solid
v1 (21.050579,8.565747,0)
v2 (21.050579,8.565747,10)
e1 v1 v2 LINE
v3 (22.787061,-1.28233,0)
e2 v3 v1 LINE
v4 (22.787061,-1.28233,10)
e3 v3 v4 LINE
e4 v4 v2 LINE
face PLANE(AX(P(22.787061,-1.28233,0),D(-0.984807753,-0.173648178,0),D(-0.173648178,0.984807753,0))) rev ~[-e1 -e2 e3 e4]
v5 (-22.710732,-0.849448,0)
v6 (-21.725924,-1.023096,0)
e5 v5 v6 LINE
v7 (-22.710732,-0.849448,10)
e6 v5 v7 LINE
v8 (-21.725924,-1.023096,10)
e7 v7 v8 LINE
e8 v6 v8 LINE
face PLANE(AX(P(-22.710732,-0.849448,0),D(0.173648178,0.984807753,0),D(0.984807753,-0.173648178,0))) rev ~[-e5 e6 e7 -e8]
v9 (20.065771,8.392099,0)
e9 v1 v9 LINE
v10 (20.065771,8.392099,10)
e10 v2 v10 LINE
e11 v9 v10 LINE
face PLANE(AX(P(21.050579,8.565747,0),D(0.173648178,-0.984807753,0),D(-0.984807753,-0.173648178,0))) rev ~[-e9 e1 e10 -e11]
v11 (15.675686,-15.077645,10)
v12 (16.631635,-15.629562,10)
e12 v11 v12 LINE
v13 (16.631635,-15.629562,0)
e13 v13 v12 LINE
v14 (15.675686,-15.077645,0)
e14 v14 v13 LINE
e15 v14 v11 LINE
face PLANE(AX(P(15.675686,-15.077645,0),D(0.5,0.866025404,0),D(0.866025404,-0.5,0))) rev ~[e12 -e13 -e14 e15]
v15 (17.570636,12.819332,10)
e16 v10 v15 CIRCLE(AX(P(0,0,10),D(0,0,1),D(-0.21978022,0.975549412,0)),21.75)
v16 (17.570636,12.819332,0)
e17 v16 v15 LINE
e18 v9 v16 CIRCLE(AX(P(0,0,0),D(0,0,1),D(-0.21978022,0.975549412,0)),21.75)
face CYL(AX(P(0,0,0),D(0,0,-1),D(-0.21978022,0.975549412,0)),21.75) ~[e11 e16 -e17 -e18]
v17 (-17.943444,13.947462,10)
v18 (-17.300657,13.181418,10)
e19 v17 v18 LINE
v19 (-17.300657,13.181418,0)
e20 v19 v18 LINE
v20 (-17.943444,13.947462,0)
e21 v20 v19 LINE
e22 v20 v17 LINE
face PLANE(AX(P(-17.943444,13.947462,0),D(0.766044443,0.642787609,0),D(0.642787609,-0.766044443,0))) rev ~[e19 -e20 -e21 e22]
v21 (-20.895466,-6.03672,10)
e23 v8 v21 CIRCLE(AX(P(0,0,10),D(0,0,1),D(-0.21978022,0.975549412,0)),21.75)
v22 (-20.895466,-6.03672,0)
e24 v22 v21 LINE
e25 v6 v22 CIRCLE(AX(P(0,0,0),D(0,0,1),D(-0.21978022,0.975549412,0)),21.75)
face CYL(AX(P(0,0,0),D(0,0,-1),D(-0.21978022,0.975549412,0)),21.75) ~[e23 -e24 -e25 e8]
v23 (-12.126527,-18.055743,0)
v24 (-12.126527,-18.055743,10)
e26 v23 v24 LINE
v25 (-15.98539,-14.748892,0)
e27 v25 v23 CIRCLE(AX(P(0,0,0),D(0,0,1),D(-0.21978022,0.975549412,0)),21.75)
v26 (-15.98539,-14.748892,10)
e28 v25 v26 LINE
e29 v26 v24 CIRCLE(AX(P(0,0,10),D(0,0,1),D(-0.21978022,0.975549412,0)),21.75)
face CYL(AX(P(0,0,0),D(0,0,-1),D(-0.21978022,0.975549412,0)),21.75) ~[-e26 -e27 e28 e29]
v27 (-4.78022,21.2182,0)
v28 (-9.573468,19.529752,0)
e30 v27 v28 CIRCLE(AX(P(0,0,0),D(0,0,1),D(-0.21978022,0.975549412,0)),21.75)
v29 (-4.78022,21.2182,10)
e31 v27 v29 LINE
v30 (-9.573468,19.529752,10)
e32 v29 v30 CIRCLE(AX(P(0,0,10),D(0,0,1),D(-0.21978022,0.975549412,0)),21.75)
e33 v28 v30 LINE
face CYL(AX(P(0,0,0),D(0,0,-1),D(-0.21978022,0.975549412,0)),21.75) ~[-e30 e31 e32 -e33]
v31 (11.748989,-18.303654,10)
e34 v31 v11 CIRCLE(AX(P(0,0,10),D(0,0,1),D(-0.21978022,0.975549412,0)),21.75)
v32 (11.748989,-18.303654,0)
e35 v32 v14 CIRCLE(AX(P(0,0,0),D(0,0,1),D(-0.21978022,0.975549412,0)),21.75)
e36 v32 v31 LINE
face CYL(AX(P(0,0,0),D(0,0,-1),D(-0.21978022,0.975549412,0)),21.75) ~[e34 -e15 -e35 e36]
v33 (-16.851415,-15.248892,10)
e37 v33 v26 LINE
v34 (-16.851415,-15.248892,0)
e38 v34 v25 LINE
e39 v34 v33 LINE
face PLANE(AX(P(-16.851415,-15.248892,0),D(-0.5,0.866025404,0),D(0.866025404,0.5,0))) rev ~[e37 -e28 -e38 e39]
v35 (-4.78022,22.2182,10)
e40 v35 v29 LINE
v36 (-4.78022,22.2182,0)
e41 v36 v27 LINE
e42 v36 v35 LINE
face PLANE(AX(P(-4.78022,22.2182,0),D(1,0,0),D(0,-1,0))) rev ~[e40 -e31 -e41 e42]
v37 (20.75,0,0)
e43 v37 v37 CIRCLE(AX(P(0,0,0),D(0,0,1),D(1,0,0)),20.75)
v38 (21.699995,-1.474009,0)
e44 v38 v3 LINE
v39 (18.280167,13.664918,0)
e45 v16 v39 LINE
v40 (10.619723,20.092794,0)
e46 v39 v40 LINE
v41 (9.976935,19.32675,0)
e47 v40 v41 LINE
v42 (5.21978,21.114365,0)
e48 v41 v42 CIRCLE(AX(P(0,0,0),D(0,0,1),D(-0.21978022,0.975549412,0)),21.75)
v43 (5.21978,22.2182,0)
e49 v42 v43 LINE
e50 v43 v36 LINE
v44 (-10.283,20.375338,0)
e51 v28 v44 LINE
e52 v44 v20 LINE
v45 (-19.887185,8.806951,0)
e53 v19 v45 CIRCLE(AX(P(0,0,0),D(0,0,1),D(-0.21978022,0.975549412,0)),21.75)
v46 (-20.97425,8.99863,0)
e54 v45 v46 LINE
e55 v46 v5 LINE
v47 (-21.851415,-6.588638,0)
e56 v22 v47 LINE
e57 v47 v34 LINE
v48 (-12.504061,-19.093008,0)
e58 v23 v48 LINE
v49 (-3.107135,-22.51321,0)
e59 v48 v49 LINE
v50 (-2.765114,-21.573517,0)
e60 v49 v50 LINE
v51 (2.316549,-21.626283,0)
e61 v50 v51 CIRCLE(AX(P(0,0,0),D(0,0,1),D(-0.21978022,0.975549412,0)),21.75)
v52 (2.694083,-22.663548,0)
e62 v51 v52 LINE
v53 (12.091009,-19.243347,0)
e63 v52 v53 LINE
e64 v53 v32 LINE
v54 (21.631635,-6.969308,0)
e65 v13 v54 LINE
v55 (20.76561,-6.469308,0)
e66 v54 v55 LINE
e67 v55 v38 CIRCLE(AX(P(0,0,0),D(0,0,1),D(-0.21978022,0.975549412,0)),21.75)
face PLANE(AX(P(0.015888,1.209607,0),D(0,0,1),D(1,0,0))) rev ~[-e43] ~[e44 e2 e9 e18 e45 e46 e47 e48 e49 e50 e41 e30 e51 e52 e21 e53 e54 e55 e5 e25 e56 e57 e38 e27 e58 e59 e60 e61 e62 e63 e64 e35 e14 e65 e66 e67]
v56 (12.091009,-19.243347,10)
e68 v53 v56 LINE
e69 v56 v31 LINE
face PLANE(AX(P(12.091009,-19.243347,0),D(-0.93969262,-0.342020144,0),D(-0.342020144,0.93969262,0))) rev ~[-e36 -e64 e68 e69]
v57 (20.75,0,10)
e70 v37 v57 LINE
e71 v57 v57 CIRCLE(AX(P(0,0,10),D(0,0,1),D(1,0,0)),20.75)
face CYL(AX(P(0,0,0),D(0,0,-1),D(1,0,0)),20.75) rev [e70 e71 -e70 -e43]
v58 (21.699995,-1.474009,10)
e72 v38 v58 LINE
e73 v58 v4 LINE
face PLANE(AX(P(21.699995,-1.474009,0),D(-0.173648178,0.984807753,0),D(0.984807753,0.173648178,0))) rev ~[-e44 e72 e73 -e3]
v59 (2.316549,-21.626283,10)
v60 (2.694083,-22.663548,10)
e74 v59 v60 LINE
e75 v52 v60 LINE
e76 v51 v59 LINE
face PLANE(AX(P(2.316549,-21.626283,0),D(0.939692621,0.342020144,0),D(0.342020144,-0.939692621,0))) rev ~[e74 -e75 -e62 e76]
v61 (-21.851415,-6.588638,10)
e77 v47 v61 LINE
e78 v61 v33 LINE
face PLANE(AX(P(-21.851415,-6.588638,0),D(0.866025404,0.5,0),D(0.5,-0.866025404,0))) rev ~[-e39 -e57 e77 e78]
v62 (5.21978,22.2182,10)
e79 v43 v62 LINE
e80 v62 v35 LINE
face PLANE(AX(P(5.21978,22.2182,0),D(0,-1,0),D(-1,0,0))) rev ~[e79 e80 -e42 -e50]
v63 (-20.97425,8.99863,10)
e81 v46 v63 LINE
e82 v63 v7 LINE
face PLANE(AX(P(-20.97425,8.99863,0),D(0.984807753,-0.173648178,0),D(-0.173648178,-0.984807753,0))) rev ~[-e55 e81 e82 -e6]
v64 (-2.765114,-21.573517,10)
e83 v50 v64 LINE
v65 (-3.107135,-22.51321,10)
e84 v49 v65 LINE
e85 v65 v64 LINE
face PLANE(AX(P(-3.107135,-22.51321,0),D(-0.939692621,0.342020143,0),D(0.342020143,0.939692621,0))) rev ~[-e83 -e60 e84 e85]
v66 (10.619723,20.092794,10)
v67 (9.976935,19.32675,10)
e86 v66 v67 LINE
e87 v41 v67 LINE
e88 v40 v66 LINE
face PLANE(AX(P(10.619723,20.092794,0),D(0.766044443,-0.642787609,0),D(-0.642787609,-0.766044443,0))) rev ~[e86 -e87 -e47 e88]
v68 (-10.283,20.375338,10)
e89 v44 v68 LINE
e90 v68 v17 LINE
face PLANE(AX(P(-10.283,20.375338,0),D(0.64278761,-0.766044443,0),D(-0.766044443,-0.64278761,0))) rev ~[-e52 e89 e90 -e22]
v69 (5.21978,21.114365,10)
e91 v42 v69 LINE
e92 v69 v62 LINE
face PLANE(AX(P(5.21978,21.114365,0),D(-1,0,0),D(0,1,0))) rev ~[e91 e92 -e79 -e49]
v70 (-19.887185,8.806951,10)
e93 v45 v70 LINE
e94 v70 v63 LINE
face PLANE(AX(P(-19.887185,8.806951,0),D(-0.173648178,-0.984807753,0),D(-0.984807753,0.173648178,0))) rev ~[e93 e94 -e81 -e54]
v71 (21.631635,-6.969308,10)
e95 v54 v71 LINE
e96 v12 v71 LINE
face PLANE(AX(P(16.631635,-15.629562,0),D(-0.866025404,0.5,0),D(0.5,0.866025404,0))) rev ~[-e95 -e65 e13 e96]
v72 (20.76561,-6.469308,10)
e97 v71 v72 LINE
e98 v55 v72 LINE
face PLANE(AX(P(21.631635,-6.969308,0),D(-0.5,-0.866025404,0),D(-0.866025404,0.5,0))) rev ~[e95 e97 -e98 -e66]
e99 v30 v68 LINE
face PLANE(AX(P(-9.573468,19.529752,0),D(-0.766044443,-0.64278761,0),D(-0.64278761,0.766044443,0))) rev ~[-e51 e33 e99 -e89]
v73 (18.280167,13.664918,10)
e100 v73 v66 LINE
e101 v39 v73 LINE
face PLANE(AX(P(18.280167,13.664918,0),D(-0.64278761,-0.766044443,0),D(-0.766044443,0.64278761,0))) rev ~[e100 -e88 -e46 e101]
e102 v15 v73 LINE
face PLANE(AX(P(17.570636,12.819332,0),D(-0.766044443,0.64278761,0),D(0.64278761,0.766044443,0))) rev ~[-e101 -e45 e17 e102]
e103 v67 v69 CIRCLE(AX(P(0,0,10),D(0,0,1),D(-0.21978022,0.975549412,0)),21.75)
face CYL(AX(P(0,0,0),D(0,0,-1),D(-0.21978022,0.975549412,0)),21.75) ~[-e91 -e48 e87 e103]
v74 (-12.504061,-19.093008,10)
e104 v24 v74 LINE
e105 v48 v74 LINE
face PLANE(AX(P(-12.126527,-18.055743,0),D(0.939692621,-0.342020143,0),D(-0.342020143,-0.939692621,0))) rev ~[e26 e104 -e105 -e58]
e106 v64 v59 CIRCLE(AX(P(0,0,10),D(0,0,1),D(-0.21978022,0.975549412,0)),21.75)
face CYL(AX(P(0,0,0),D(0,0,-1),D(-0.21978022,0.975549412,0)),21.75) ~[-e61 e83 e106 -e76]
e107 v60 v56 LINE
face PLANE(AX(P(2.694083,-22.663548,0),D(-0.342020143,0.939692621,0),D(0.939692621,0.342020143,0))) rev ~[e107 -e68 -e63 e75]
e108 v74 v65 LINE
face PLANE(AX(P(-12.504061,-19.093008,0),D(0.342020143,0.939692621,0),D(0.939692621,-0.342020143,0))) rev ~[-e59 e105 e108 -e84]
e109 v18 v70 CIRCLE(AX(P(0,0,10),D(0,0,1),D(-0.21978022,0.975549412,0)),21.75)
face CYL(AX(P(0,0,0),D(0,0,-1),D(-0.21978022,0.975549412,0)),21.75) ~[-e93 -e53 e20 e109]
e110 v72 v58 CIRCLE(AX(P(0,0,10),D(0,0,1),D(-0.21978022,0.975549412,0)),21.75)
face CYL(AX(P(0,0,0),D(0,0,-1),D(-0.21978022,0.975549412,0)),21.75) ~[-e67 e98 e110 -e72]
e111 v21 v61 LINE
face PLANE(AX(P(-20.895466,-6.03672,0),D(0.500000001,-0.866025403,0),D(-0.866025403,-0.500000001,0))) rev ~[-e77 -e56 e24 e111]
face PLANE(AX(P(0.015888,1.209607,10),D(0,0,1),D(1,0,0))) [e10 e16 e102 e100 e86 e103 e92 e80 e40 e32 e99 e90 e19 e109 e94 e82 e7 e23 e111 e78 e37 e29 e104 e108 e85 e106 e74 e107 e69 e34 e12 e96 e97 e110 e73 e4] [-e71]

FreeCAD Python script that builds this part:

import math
import FreeCAD as App
import Part
import Sketcher
from FreeCAD import Vector
Q = App.Units.Quantity

doc = App.newDocument("Part")
params = doc.addObject("Spreadsheet::Sheet", "Params")
for row, (alias, value) in enumerate([
    ("sketch1_diameter", "41.5 mm"),
    ("sketch1_width", "10 mm"),
    ("sketch1_height", "1 mm"),
    ("sketch1_radius", "21.75 mm"),
    ("sketch1_length", "10 mm"),
    ("pad1_length", "10 mm"),
], start=1):
    params.set(f"A{row}", alias)
    params.set(f"B{row}", "=" + value)
    params.setAlias(f"B{row}", alias)

body = doc.addObject("PartDesign::Body", "Body")

sketch1 = body.newObject("Sketcher::SketchObject", "Sketch")
sketch1.AttachmentSupport = (doc.getObject("XY_Plane"), [""])
sketch1.MapMode = "FlatFace"
sketch1.addGeometry([
    Part.ArcOfCircle(Part.Circle(Vector(0, 0, 0), Vector(0, 0, 1), 21.8), math.radians(102.7), math.radians(116.11)),
    Part.LineSegment(Vector(-9.6, 19.5, 0), Vector(-10.3, 20.4, 0)),
    Part.LineSegment(Vector(-10.3, 20.4, 0), Vector(-17.9, 13.9, 0)),
    Part.LineSegment(Vector(-17.9, 13.9, 0), Vector(-17.3, 13.2, 0)),
    Part.ArcOfCircle(Part.Circle(Vector(0, 0, 0), Vector(0, 0, 1), 21.8), math.radians(142.7), math.radians(156.11)),
    Part.LineSegment(Vector(-19.9, 8.8, 0), Vector(-21, 9, 0)),
    Part.LineSegment(Vector(-21, 9, 0), Vector(-22.7, -0.8, 0)),
    Part.LineSegment(Vector(-22.7, -0.8, 0), Vector(-21.7, -1, 0)),
    Part.ArcOfCircle(Part.Circle(Vector(0, 0, 0), Vector(0, 0, 1), 21.8), math.radians(-177.3), math.radians(-163.89)),
    Part.LineSegment(Vector(-20.9, -6, 0), Vector(-21.9, -6.6, 0)),
    Part.LineSegment(Vector(-21.9, -6.6, 0), Vector(-16.9, -15.2, 0)),
    Part.LineSegment(Vector(-16.9, -15.2, 0), Vector(-16, -14.7, 0)),
    Part.ArcOfCircle(Part.Circle(Vector(0, 0, 0), Vector(0, 0, 1), 21.8), math.radians(-137.3), math.radians(-123.89)),
    Part.LineSegment(Vector(-12.1, -18.1, 0), Vector(-12.5, -19.1, 0)),
    Part.LineSegment(Vector(-12.5, -19.1, 0), Vector(-3.1, -22.5, 0)),
    Part.LineSegment(Vector(-3.1, -22.5, 0), Vector(-2.8, -21.6, 0)),
    Part.ArcOfCircle(Part.Circle(Vector(0, 0, 0), Vector(0, 0, 1), 21.8), math.radians(-97.3), math.radians(-83.89)),
    Part.LineSegment(Vector(2.3, -21.6, 0), Vector(2.7, -22.7, 0)),
    Part.LineSegment(Vector(2.7, -22.7, 0), Vector(12.1, -19.2, 0)),
    Part.LineSegment(Vector(12.1, -19.2, 0), Vector(11.7, -18.3, 0)),
    Part.ArcOfCircle(Part.Circle(Vector(0, 0, 0), Vector(0, 0, 1), 21.8), math.radians(-57.3), math.radians(-43.89)),
    Part.LineSegment(Vector(15.7, -15.1, 0), Vector(16.6, -15.6, 0)),
    Part.LineSegment(Vector(16.6, -15.6, 0), Vector(21.6, -7, 0)),
    Part.LineSegment(Vector(21.6, -7, 0), Vector(20.8, -6.5, 0)),
    Part.ArcOfCircle(Part.Circle(Vector(0, 0, 0), Vector(0, 0, 1), 21.8), math.radians(-17.3), math.radians(-3.89)),
    Part.LineSegment(Vector(21.7, -1.5, 0), Vector(22.8, -1.3, 0)),
    Part.LineSegment(Vector(22.8, -1.3, 0), Vector(21.1, 8.6, 0)),
    Part.LineSegment(Vector(21.1, 8.6, 0), Vector(20.1, 8.4, 0)),
    Part.ArcOfCircle(Part.Circle(Vector(0, 0, 0), Vector(0, 0, 1), 21.8), math.radians(22.7), math.radians(36.11)),
    Part.LineSegment(Vector(17.6, 12.8, 0), Vector(18.3, 13.7, 0)),
    Part.LineSegment(Vector(18.3, 13.7, 0), Vector(10.6, 20.1, 0)),
    Part.LineSegment(Vector(10.6, 20.1, 0), Vector(10, 19.3, 0)),
    Part.ArcOfCircle(Part.Circle(Vector(0, 0, 0), Vector(0, 0, 1), 21.8), math.radians(62.7), math.radians(76.11)),
    Part.LineSegment(Vector(5.2, 21.1, 0), Vector(5.2, 22.2, 0)),
    Part.LineSegment(Vector(5.2, 22.2, 0), Vector(-4.8, 22.2, 0)),
    Part.LineSegment(Vector(-4.8, 22.2, 0), Vector(-4.8, 21.2, 0)),
    Part.Circle(Vector(0, 0, 0), Vector(0, 0, 1), 20.8),
], False)
sketch1.addConstraint([
    Sketcher.Constraint("Coincident", 0, 2, 1, 1),
    Sketcher.Constraint("Coincident", 1, 2, 2, 1),
    Sketcher.Constraint("Coincident", 2, 2, 3, 1),
    Sketcher.Constraint("Coincident", 3, 2, 4, 1),
    Sketcher.Constraint("Coincident", 4, 2, 5, 1),
    Sketcher.Constraint("Coincident", 5, 2, 6, 1),
    Sketcher.Constraint("Coincident", 6, 2, 7, 1),
    Sketcher.Constraint("Coincident", 7, 2, 8, 1),
    Sketcher.Constraint("Coincident", 8, 2, 9, 1),
    Sketcher.Constraint("Coincident", 9, 2, 10, 1),
    Sketcher.Constraint("Coincident", 10, 2, 11, 1),
    Sketcher.Constraint("Coincident", 11, 2, 12, 1),
    Sketcher.Constraint("Coincident", 12, 2, 13, 1),
    Sketcher.Constraint("Coincident", 13, 2, 14, 1),
    Sketcher.Constraint("Coincident", 14, 2, 15, 1),
    Sketcher.Constraint("Coincident", 15, 2, 16, 1),
    Sketcher.Constraint("Coincident", 16, 2, 17, 1),
    Sketcher.Constraint("Coincident", 17, 2, 18, 1),
    Sketcher.Constraint("Coincident", 18, 2, 19, 1),
    Sketcher.Constraint("Coincident", 19, 2, 20, 1),
    Sketcher.Constraint("Coincident", 20, 2, 21, 1),
    Sketcher.Constraint("Coincident", 21, 2, 22, 1),
    Sketcher.Constraint("Coincident", 22, 2, 23, 1),
    Sketcher.Constraint("Coincident", 23, 2, 24, 1),
    Sketcher.Constraint("Coincident", 24, 2, 25, 1),
    Sketcher.Constraint("Coincident", 25, 2, 26, 1),
    Sketcher.Constraint("Coincident", 26, 2, 27, 1),
    Sketcher.Constraint("Coincident", 27, 2, 28, 1),
    Sketcher.Constraint("Coincident", 28, 2, 29, 1),
    Sketcher.Constraint("Coincident", 29, 2, 30, 1),
    Sketcher.Constraint("Coincident", 30, 2, 31, 1),
    Sketcher.Constraint("Coincident", 31, 2, 32, 1),
    Sketcher.Constraint("Coincident", 32, 2, 33, 1),
    Sketcher.Constraint("Coincident", 33, 2, 34, 1),
    Sketcher.Constraint("Coincident", 34, 2, 35, 1),
    Sketcher.Constraint("Coincident", 35, 2, 0, 1),
    Sketcher.Constraint("Vertical", 33),
    Sketcher.Constraint("Horizontal", 34),
    Sketcher.Constraint("Vertical", 35),
    Sketcher.Constraint("Coincident", 0, 3, -1, 1),
    Sketcher.Constraint("Coincident", 4, 3, -1, 1),
    Sketcher.Constraint("Coincident", 8, 3, -1, 1),
    Sketcher.Constraint("Coincident", 12, 3, -1, 1),
    Sketcher.Constraint("Coincident", 16, 3, -1, 1),
    Sketcher.Constraint("Coincident", 20, 3, -1, 1),
    Sketcher.Constraint("Coincident", 24, 3, -1, 1),
    Sketcher.Constraint("Coincident", 28, 3, -1, 1),
    Sketcher.Constraint("Coincident", 32, 3, -1, 1),
    Sketcher.Constraint("Coincident", 36, 3, -1, 1),
    Sketcher.Constraint("Equal", 0, 4),
    Sketcher.Constraint("Equal", 4, 8),
    Sketcher.Constraint("Equal", 8, 12),
    Sketcher.Constraint("Equal", 12, 16),
    Sketcher.Constraint("Equal", 16, 20),
    Sketcher.Constraint("Equal", 20, 24),
    Sketcher.Constraint("Equal", 24, 28),
    Sketcher.Constraint("Equal", 28, 32),
    Sketcher.Constraint("Perpendicular", 1, 2),
    Sketcher.Constraint("Perpendicular", 2, 3),
    Sketcher.Constraint("Perpendicular", 5, 6),
    Sketcher.Constraint("Perpendicular", 6, 7),
    Sketcher.Constraint("Perpendicular", 9, 10),
    Sketcher.Constraint("Perpendicular", 10, 11),
    Sketcher.Constraint("Perpendicular", 13, 14),
    Sketcher.Constraint("Perpendicular", 14, 15),
    Sketcher.Constraint("Perpendicular", 17, 18),
    Sketcher.Constraint("Perpendicular", 18, 19),
    Sketcher.Constraint("Perpendicular", 21, 22),
    Sketcher.Constraint("Perpendicular", 22, 23),
    Sketcher.Constraint("Perpendicular", 25, 26),
    Sketcher.Constraint("Perpendicular", 26, 27),
    Sketcher.Constraint("Perpendicular", 29, 30),
    Sketcher.Constraint("Perpendicular", 30, 31),
    Sketcher.Constraint("Equal", 1, 5),
    Sketcher.Constraint("Equal", 2, 6),
    Sketcher.Constraint("Equal", 3, 7),
    Sketcher.Constraint("Equal", 5, 9),
    Sketcher.Constraint("Equal", 6, 10),
    Sketcher.Constraint("Equal", 7, 11),
    Sketcher.Constraint("Equal", 9, 13),
    Sketcher.Constraint("Equal", 10, 14),
    Sketcher.Constraint("Equal", 11, 15),
    Sketcher.Constraint("Equal", 13, 17),
    Sketcher.Constraint("Equal", 14, 18),
    Sketcher.Constraint("Equal", 15, 19),
    Sketcher.Constraint("Equal", 17, 21),
    Sketcher.Constraint("Equal", 18, 22),
    Sketcher.Constraint("Equal", 19, 23),
    Sketcher.Constraint("Equal", 21, 25),
    Sketcher.Constraint("Equal", 22, 26),
    Sketcher.Constraint("Equal", 23, 27),
    Sketcher.Constraint("Equal", 25, 29),
    Sketcher.Constraint("Equal", 26, 30),
    Sketcher.Constraint("Equal", 27, 31),
    Sketcher.Constraint("Diameter", 36, 41.5),
    Sketcher.Constraint("DistanceX", 34, 2, 34, 1, 10.0),
    Sketcher.Constraint("DistanceY", 35, 2, 35, 1, 1.0),
    Sketcher.Constraint("Angle", 1, Q("130 deg")),
    Sketcher.Constraint("Angle", 5, Q("170 deg")),
    Sketcher.Constraint("Angle", 9, Q("-150 deg")),
    Sketcher.Constraint("Angle", 13, Q("-110 deg")),
    Sketcher.Constraint("Angle", 17, Q("-70 deg")),
    Sketcher.Constraint("Angle", 21, Q("-30 deg")),
    Sketcher.Constraint("Angle", 25, Q("10 deg")),
    Sketcher.Constraint("Angle", 29, Q("50 deg")),
    Sketcher.Constraint("Radius", 0, 21.75),
    Sketcher.Constraint("Distance", 2, 10.0),
    Sketcher.Constraint("Distance", 3, 1.0),
    Sketcher.Constraint("DistanceX", 1, 2, -1, 1, 10.283),
    Sketcher.Constraint("DistanceY", -1, 1, 33, 2, 22.2182),
])
sketch1.setExpression("Constraints[94]", "Params.sketch1_diameter")
sketch1.setExpression("Constraints[95]", "Params.sketch1_width")
sketch1.setExpression("Constraints[96]", "Params.sketch1_height")
sketch1.setExpression("Constraints[105]", "Params.sketch1_radius")
sketch1.setExpression("Constraints[106]", "Params.sketch1_length")
pad1 = body.newObject("PartDesign::Pad", "Pad")
pad1.Profile = sketch1
pad1.setExpression("Length", "Params.pad1_length")

doc.recompute()
